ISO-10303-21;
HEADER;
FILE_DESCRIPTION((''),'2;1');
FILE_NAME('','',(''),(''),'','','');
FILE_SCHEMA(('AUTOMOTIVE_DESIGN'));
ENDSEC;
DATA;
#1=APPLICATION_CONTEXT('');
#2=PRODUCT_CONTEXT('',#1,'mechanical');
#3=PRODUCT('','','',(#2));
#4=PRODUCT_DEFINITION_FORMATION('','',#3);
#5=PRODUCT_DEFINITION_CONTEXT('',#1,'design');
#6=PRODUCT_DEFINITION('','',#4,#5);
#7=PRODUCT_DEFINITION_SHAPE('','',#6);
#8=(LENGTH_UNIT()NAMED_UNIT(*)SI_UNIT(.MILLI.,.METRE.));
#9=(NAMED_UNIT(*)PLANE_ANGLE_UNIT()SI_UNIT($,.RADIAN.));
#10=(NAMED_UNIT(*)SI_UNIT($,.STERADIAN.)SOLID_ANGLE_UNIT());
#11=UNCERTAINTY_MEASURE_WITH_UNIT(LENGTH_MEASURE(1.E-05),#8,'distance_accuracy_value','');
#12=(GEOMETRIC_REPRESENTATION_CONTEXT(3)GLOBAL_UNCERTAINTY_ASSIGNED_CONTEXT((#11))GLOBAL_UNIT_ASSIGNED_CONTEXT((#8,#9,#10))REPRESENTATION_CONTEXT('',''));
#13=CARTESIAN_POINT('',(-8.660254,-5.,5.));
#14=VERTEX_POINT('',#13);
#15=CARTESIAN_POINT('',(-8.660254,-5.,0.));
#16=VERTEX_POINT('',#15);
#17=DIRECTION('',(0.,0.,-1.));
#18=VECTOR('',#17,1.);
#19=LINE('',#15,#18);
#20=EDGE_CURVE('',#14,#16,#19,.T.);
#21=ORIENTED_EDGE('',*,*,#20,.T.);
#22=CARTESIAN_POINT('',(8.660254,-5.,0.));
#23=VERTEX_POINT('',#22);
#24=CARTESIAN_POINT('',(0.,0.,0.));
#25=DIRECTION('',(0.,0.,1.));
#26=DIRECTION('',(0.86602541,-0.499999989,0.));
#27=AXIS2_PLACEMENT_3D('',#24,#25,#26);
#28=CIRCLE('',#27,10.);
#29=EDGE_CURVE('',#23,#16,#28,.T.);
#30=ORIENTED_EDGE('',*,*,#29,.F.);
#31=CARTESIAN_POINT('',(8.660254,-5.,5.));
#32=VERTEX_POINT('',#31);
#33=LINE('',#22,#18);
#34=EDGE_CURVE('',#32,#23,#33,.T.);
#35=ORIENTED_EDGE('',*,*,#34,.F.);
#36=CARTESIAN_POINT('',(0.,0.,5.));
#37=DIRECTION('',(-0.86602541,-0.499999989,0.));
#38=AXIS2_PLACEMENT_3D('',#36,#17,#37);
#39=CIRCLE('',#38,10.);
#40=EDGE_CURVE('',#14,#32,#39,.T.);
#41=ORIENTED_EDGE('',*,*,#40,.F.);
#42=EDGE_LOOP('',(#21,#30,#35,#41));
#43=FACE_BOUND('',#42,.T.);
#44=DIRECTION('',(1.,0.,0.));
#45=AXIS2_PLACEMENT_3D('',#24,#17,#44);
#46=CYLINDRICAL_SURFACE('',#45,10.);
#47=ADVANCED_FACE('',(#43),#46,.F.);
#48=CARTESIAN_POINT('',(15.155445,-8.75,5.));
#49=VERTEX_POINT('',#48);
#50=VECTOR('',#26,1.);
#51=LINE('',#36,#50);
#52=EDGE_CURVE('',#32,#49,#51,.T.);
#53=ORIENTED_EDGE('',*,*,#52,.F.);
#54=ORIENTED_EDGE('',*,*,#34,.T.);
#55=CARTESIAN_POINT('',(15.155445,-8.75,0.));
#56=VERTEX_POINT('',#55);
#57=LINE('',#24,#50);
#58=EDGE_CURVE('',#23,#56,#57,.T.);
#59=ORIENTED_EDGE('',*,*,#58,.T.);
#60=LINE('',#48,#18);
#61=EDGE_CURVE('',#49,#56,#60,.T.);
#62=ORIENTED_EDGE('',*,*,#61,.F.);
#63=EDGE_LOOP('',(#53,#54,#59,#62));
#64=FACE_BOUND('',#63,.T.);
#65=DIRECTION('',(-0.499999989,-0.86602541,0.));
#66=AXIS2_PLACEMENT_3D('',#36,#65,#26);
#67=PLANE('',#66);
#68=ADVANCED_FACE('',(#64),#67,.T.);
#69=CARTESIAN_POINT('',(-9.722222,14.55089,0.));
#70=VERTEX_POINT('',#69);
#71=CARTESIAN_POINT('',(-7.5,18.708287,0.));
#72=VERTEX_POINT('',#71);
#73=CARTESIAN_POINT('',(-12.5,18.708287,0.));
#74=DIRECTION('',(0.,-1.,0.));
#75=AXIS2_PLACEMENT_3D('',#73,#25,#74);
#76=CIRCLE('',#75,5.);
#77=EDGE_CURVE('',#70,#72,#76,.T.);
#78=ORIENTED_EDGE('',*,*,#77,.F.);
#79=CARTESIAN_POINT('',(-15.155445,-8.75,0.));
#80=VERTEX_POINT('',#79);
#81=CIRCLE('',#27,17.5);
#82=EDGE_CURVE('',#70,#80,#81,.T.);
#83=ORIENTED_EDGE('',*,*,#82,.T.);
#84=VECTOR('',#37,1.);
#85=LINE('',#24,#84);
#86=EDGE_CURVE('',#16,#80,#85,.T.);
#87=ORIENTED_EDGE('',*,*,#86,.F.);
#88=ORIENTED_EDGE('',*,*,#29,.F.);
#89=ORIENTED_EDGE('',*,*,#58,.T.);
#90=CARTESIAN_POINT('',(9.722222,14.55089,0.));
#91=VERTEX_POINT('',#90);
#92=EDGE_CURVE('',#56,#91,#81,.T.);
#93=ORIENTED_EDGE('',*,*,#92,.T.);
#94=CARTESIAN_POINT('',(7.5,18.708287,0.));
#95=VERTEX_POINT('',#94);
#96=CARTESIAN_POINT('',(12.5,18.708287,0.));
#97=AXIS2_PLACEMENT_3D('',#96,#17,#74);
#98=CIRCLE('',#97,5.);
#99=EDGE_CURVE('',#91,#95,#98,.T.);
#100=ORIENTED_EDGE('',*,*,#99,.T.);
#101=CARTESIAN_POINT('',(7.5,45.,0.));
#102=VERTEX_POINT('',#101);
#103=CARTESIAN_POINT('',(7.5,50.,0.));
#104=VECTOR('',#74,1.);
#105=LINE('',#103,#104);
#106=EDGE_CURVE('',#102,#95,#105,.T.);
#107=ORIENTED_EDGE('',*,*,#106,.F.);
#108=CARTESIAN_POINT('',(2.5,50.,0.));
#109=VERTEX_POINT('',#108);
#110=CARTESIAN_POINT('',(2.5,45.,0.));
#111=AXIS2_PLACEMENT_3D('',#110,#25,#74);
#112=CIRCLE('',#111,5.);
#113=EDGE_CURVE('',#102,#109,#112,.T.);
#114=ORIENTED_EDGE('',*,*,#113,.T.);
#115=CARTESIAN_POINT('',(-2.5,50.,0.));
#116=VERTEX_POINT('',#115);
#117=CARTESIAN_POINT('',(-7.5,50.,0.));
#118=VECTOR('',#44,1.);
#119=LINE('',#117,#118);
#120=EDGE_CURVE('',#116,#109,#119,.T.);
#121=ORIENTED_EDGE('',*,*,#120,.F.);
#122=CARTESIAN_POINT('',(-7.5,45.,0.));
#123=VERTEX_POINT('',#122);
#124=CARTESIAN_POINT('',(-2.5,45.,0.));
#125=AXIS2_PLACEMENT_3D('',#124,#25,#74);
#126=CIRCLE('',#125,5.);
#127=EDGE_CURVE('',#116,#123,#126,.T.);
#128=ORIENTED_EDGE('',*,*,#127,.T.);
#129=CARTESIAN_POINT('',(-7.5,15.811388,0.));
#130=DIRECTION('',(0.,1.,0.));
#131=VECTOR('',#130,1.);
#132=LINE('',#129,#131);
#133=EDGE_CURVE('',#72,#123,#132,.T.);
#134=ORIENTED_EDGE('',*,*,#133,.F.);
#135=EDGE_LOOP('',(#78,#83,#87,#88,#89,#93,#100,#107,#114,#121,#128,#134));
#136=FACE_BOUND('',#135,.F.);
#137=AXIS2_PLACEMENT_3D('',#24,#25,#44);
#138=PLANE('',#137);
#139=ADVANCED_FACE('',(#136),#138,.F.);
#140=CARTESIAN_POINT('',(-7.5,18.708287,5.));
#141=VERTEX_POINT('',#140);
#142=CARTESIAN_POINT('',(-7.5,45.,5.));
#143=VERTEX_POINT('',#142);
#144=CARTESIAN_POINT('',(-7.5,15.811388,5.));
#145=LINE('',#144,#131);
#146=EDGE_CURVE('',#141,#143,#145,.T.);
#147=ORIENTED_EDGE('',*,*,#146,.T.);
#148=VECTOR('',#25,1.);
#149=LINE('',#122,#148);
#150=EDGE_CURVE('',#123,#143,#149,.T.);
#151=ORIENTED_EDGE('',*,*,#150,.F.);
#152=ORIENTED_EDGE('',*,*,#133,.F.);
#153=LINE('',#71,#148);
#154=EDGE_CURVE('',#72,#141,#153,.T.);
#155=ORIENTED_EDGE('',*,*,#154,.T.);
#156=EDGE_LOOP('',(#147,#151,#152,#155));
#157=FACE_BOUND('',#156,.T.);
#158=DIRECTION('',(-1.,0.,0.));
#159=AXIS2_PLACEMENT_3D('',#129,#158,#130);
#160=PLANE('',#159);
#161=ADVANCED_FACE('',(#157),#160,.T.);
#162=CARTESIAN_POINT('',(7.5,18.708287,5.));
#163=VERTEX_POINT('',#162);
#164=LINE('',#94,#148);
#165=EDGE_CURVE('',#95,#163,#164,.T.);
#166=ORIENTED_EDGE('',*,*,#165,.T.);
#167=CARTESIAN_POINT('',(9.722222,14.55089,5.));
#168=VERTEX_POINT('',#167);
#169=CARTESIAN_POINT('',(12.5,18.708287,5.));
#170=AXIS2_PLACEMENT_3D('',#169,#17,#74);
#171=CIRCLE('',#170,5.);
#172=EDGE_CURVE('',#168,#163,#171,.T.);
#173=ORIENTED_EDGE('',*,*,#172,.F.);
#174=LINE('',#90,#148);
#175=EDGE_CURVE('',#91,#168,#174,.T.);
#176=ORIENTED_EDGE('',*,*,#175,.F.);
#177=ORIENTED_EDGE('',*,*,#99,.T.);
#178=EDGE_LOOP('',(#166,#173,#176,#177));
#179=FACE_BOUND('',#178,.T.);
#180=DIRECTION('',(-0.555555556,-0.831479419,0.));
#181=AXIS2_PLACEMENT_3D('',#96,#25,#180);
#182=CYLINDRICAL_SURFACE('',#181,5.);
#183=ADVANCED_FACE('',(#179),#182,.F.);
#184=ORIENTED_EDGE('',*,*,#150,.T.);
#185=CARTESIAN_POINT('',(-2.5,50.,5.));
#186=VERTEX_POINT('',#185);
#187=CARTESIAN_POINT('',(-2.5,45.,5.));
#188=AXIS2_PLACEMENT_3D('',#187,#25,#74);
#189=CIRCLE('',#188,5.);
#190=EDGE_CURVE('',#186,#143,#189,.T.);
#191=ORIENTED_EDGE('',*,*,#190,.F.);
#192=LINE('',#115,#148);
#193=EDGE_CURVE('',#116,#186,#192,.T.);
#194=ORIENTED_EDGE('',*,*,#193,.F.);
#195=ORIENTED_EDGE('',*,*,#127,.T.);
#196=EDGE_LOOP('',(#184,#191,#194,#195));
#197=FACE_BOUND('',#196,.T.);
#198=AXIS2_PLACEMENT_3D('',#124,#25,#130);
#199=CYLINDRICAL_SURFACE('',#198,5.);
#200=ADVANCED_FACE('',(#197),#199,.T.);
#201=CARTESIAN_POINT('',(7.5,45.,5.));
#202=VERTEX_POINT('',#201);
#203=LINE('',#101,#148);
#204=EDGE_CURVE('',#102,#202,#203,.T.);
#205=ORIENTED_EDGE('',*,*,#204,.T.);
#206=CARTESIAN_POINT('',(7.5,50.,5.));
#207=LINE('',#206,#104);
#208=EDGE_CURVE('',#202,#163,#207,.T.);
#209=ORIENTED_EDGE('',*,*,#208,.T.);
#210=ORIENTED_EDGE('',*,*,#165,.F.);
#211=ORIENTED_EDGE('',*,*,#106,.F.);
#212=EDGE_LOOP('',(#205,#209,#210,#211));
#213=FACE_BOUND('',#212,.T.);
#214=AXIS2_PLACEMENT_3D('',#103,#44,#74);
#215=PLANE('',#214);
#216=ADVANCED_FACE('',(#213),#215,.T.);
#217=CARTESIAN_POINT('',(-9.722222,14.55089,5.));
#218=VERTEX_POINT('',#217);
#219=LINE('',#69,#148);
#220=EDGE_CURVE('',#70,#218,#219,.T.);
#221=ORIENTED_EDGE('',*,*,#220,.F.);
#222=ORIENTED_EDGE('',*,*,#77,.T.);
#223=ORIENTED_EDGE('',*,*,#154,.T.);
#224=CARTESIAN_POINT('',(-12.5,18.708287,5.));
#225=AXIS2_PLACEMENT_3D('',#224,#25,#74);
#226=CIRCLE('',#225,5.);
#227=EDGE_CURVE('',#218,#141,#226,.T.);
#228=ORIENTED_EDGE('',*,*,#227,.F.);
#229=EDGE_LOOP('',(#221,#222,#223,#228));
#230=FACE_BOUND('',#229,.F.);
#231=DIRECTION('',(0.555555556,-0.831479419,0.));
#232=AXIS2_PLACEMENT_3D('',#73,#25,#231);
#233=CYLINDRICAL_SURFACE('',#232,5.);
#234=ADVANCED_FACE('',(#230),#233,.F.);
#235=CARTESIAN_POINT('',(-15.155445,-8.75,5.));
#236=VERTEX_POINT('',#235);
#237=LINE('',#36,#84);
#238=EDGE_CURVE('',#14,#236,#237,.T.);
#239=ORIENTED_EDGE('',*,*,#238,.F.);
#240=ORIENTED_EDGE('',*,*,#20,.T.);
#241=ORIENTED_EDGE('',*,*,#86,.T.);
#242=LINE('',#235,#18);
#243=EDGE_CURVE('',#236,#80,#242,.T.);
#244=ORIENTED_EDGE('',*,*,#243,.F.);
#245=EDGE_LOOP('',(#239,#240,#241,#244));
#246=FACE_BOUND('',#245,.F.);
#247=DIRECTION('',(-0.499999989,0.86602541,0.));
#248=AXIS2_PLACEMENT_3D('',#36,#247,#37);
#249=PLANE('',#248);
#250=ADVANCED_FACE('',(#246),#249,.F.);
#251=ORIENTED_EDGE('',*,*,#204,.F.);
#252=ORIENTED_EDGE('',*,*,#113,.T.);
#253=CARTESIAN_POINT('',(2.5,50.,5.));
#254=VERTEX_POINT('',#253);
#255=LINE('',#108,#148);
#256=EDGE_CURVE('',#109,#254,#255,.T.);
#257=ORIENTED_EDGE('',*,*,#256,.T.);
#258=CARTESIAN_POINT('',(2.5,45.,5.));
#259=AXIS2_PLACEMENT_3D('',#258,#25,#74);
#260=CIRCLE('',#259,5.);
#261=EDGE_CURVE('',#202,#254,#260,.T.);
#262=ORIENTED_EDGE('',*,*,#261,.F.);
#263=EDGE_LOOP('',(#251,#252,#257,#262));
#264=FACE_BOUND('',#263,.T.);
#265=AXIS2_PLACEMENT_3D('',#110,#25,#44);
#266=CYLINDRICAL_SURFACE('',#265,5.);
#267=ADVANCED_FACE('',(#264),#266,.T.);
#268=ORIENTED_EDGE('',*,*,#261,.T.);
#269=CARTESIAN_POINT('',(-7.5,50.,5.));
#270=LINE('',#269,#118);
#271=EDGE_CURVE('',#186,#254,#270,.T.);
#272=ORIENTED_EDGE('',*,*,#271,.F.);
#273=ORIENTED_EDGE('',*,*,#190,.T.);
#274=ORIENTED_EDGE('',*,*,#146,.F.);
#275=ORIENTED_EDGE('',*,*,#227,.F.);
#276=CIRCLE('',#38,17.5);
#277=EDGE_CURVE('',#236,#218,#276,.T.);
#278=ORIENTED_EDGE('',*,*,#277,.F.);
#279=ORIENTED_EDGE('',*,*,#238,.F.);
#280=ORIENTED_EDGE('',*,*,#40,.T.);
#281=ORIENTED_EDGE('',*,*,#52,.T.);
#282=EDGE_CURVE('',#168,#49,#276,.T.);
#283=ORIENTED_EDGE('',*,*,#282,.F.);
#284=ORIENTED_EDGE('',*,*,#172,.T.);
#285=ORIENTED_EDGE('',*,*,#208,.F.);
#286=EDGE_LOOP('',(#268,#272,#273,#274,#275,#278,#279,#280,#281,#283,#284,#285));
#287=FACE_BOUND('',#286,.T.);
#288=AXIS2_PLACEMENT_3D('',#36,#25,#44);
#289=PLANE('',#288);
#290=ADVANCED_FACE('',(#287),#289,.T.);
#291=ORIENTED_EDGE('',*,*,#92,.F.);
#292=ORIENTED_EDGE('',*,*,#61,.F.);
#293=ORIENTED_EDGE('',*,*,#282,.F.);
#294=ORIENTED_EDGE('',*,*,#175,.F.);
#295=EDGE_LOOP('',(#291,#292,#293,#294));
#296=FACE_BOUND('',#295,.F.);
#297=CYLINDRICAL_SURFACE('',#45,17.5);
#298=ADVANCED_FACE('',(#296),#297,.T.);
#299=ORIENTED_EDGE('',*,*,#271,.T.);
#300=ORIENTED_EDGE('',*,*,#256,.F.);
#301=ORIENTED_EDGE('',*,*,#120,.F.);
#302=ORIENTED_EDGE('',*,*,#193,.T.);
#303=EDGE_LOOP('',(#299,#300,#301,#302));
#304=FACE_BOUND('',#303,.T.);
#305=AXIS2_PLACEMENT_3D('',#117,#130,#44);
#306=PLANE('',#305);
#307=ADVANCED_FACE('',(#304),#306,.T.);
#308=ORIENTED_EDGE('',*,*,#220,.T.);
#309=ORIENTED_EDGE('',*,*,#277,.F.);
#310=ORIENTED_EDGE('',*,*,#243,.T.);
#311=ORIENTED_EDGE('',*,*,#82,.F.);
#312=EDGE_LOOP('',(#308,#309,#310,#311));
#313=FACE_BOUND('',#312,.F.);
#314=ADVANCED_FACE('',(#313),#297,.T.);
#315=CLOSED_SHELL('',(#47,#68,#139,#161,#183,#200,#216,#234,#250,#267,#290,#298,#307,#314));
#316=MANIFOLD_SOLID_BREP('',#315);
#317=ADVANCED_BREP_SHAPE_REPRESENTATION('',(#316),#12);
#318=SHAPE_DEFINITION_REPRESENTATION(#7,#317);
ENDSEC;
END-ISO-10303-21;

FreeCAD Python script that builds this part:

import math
import FreeCAD as App
import Part
import Sketcher
Q = App.Units.Quantity


def edges_at(feature, points):
    """Names of the edges that pass closest to the given points."""
    edges = feature.Shape.Edges
    near = lambda p: min(range(len(edges)), key=lambda i: edges[i].distToShape(Part.Vertex(*p))[0])
    return sorted({f"Edge{near(p) + 1}" for p in points})

doc = App.newDocument("Part")
body = doc.addObject("PartDesign::Body", "Body")

# Sketch on XY plane
sketch1 = body.newObject("Sketcher::SketchObject", "Sketch")
sketch1.AttachmentSupport = (doc.getObject("XY_Plane"), [""])
sketch1.MapMode = "FlatFace"
sketch1.addGeometry([
    Part.Circle(App.Vector(0, 0, 0), App.Vector(0, 0, 1), 17.5),
    Part.Circle(App.Vector(0, 0, 0), App.Vector(0, 0, 1), 10),
], False)
sketch1.addConstraint([
    Sketcher.Constraint("Coincident", 0, 3, -1, 1),
    Sketcher.Constraint("Coincident", 1, 3, -1, 1),
    Sketcher.Constraint("Diameter", 0, 35.0),
    Sketcher.Constraint("Diameter", 1, 20.0),
])
pad1 = body.newObject("PartDesign::Pad", "Pad")
pad1.Profile = sketch1
pad1.Length = 5

# Sketch on XY plane
sketch2 = body.newObject("Sketcher::SketchObject", "Sketch001")
sketch2.AttachmentSupport = (doc.getObject("XY_Plane"), [""])
sketch2.MapMode = "FlatFace"
sketch2.AttachmentOffset = App.Placement(App.Vector(0, 0, 5), App.Rotation())
sketch2.addGeometry([
    Part.LineSegment(App.Vector(0, 0, 0), App.Vector(-15.155445, -8.75, 0)),
    Part.ArcOfCircle(Part.Circle(App.Vector(0, 0.000001, 0), App.Vector(0, 0, 1), 17.500001), math.radians(-149.999999), math.radians(-30.000001)),
    Part.LineSegment(App.Vector(15.155445, -8.75, 0), App.Vector(0, 0, 0)),
], False)
sketch2.addConstraint([
    Sketcher.Constraint("Coincident", 0, 2, 1, 1),
    Sketcher.Constraint("Coincident", 1, 2, 2, 1),
    Sketcher.Constraint("Coincident", 2, 2, 0, 1),
    Sketcher.Constraint("Coincident", 1, 3, -1, 1),
    Sketcher.Constraint("Coincident", 2, 2, -1, 1),
    Sketcher.Constraint("Horizontal", 0, 2, 1, 2),
    Sketcher.Constraint("Radius", 1, 17.500001),
    Sketcher.Constraint("Angle", 0, Q("-150.000001 deg")),
])
pocket1 = body.newObject("PartDesign::Pocket", "Pocket")
pocket1.Profile = sketch2
pocket1.Type = "ThroughAll"

# Sketch on XY plane
sketch3 = body.newObject("Sketcher::SketchObject", "Sketch002")
sketch3.AttachmentSupport = (doc.getObject("XY_Plane"), [""])
sketch3.MapMode = "FlatFace"
sketch3.addGeometry([
    Part.LineSegment(App.Vector(-7.5, 15.811388, 0), App.Vector(-7.5, 50, 0)),
    Part.LineSegment(App.Vector(-7.5, 50, 0), App.Vector(7.5, 50, 0)),
    Part.LineSegment(App.Vector(7.5, 50, 0), App.Vector(7.5, 15.811388, 0)),
    Part.ArcOfCircle(Part.Circle(App.Vector(0, 0.000003, 0), App.Vector(0, 0, 1), 17.499997), math.radians(64.623062), math.radians(115.376938)),
], False)
sketch3.addConstraint([
    Sketcher.Constraint("Coincident", 0, 2, 1, 1),
    Sketcher.Constraint("Coincident", 1, 2, 2, 1),
    Sketcher.Constraint("Coincident", 2, 2, 3, 1),
    Sketcher.Constraint("Coincident", 3, 2, 0, 1),
    Sketcher.Constraint("Vertical", 0),
    Sketcher.Constraint("Horizontal", 1),
    Sketcher.Constraint("Vertical", 2),
    Sketcher.Constraint("Coincident", 3, 3, -1, 1),
    Sketcher.Constraint("Horizontal", 2, 2, 3, 2),
    Sketcher.Constraint("DistanceX", 1, 1, 1, 2, 15.0),
    Sketcher.Constraint("DistanceY", -1, 1, 0, 2, 50.0),
    Sketcher.Constraint("Radius", 3, 17.499997),
])
pad2 = body.newObject("PartDesign::Pad", "Pad001")
pad2.Profile = sketch3
pad2.Length = 5
doc.recompute()

fillet = body.newObject("PartDesign::Fillet", "Fillet")
fillet.Base = (pad2, edges_at(pad2, [
    (-7.5, 15.811, 2.5),
    (7.5, 15.811, 2.5),
    (-7.5, 50, 2.5),
    (7.5, 50, 2.5),
]))
fillet.Radius = 5

doc.recompute()
